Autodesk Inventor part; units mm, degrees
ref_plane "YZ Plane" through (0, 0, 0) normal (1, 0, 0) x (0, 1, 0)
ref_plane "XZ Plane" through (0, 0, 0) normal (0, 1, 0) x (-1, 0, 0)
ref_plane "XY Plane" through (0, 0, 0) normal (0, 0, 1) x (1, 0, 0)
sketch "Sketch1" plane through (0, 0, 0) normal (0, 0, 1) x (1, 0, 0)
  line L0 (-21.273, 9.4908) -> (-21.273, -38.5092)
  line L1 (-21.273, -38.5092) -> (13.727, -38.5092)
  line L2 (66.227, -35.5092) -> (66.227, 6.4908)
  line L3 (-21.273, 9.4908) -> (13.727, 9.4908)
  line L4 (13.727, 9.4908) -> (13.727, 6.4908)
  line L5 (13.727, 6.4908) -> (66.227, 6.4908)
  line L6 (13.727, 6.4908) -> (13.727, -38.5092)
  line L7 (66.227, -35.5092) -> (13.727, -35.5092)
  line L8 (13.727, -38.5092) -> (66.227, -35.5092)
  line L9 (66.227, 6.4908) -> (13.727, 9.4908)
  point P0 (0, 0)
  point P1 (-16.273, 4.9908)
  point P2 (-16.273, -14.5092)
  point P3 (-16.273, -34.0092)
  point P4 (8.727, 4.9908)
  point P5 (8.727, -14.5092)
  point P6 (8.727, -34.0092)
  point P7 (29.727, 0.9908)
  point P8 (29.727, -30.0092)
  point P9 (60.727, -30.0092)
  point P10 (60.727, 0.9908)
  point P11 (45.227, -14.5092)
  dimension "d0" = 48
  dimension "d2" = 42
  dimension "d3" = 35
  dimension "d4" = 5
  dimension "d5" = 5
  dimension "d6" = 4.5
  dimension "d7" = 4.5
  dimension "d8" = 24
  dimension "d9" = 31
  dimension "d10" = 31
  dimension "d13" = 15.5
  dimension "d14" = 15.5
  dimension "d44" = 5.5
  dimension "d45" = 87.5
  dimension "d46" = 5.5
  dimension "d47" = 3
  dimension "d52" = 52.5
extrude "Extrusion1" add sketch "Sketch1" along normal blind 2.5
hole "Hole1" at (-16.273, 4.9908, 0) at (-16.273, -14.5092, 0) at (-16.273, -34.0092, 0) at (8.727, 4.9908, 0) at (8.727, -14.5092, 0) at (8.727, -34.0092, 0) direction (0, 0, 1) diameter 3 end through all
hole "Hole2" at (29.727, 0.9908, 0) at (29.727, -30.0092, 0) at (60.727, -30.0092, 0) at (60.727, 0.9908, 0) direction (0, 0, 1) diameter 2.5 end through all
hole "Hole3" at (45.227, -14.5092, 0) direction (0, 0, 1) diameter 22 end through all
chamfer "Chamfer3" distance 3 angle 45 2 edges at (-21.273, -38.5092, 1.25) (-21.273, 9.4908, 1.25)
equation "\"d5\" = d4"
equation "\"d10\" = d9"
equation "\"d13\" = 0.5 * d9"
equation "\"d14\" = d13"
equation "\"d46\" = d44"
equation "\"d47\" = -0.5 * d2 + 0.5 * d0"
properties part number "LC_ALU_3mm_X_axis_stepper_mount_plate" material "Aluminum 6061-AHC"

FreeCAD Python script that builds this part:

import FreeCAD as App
import Part
import Sketcher


def edges_at(feature, points):
    """Names of the edges that pass closest to the given points."""
    edges = feature.Shape.Edges
    near = lambda p: min(range(len(edges)), key=lambda i: edges[i].distToShape(Part.Vertex(*p))[0])
    return sorted({f"Edge{near(p) + 1}" for p in points})

doc = App.newDocument("Part")
params = doc.addObject("Spreadsheet::Sheet", "Params")
for row, (alias, value) in enumerate([
    ("sketch1_width", "35 mm"),
    ("sketch1_height", "48 mm"),
    ("sketch1_height2", "42 mm"),
    ("pad1_length", "2.5 mm"),
    ("sketch2_diameter", "3 mm"),
    ("hole_diameter", "3 mm"),
    ("sketch3_diameter", "2.5 mm"),
    ("hole2_diameter", "2.5 mm"),
    ("sketch4_diameter", "22 mm"),
    ("hole3_diameter", "22 mm"),
    ("chamfer_size", "3 mm"),
], start=1):
    params.set(f"A{row}", alias)
    params.set(f"B{row}", "=" + value)
    params.setAlias(f"B{row}", alias)

body = doc.addObject("PartDesign::Body", "Body")

# Sketch on XY plane
sketch1 = body.newObject("Sketcher::SketchObject", "Sketch")
sketch1.AttachmentSupport = (doc.getObject("XY_Plane"), [""])
sketch1.MapMode = "FlatFace"
sketch1.addGeometry([
    Part.LineSegment(App.Vector(13.727, 9.4908, 0), App.Vector(-21.273, 9.4908, 0)),  # 0
    Part.LineSegment(App.Vector(-21.273, 9.4908, 0), App.Vector(-21.273, -38.5092, 0)),  # 1
    Part.LineSegment(App.Vector(-21.273, -38.5092, 0), App.Vector(13.727, -38.5092, 0)),  # 2
    Part.LineSegment(App.Vector(13.727, -38.5092, 0), App.Vector(66.227, -35.5092, 0)),  # 3
    Part.LineSegment(App.Vector(66.227, -35.5092, 0), App.Vector(66.227, 6.4908, 0)),  # 4
    Part.LineSegment(App.Vector(66.227, 6.4908, 0), App.Vector(13.727, 9.4908, 0)),  # 5
], False)
sketch1.addConstraint([
    Sketcher.Constraint("Coincident", 0, 2, 1, 1),
    Sketcher.Constraint("Coincident", 1, 2, 2, 1),
    Sketcher.Constraint("Coincident", 2, 2, 3, 1),
    Sketcher.Constraint("Coincident", 3, 2, 4, 1),
    Sketcher.Constraint("Coincident", 4, 2, 5, 1),
    Sketcher.Constraint("Coincident", 5, 2, 0, 1),
    Sketcher.Constraint("Horizontal", 0),
    Sketcher.Constraint("Vertical", 1),
    Sketcher.Constraint("Horizontal", 2),
    Sketcher.Constraint("Vertical", 4),
    Sketcher.Constraint("Vertical", 2, 2, 5, 2),
    Sketcher.Constraint("Equal", 3, 5),
    Sketcher.Constraint("DistanceX", 0, 2, 0, 1, 35.0),
    Sketcher.Constraint("DistanceY", 1, 2, 1, 1, 48.0),
    Sketcher.Constraint("DistanceY", 4, 1, 4, 2, 42.0),
    Sketcher.Constraint("DistanceX", 2, 2, 3, 2, 52.5),
    Sketcher.Constraint("DistanceX", 0, 2, -1, 1, 21.273),
    Sketcher.Constraint("DistanceY", -1, 1, 0, 2, 9.4908),
])
sketch1.setExpression("Constraints[12]", "Params.sketch1_width")
sketch1.setExpression("Constraints[13]", "Params.sketch1_height")
sketch1.setExpression("Constraints[14]", "Params.sketch1_height2")
pad1 = body.newObject("PartDesign::Pad", "Pad")
pad1.Profile = sketch1
pad1.setExpression("Length", "Params.pad1_length")

# Sketch on XY plane
sketch2 = body.newObject("Sketcher::SketchObject", "Sketch001")
sketch2.AttachmentSupport = (doc.getObject("XY_Plane"), [""])
sketch2.MapMode = "FlatFace"
sketch2.addGeometry([
    Part.Circle(App.Vector(-16.273, 4.9908, 0), App.Vector(0, 0, 1), 1.5),  # 0
    Part.Circle(App.Vector(-16.273, -14.5092, 0), App.Vector(0, 0, 1), 1.5),  # 1
    Part.Circle(App.Vector(-16.273, -34.0092, 0), App.Vector(0, 0, 1), 1.5),  # 2
    Part.Circle(App.Vector(8.727, 4.9908, 0), App.Vector(0, 0, 1), 1.5),  # 3
    Part.Circle(App.Vector(8.727, -14.5092, 0), App.Vector(0, 0, 1), 1.5),  # 4
    Part.Circle(App.Vector(8.727, -34.0092, 0), App.Vector(0, 0, 1), 1.5),  # 5
], False)
sketch2.addConstraint([
    Sketcher.Constraint("Equal", 0, 1),
    Sketcher.Constraint("Equal", 1, 2),
    Sketcher.Constraint("Equal", 2, 3),
    Sketcher.Constraint("Equal", 3, 4),
    Sketcher.Constraint("Equal", 4, 5),
    Sketcher.Constraint("Horizontal", 0, 3, 3, 3),
    Sketcher.Constraint("Horizontal", 1, 3, 4, 3),
    Sketcher.Constraint("Horizontal", 2, 3, 5, 3),
    Sketcher.Constraint("Vertical", 0, 3, 1, 3),
    Sketcher.Constraint("Vertical", 1, 3, 2, 3),
    Sketcher.Constraint("Vertical", 3, 3, 4, 3),
    Sketcher.Constraint("Vertical", 4, 3, 5, 3),
    Sketcher.Constraint("Diameter", 0, 3.0),
    Sketcher.Constraint("DistanceY", 2, 3, 0, 3, 39.0),
    Sketcher.Constraint("DistanceX", 0, 3, 3, 3, 25.0),
    Sketcher.Constraint("DistanceY", 1, 3, 0, 3, 19.5),
    Sketcher.Constraint("DistanceX", 0, 3, -1, 1, 16.273),
    Sketcher.Constraint("DistanceY", -1, 1, 0, 3, 4.9908),
])
sketch2.setExpression("Constraints[12]", "Params.sketch2_diameter")
doc.recompute()
hole = body.newObject("PartDesign::Hole", "Hole")
hole.Profile = sketch2
hole.ThreadType = "None"
hole.setExpression("Diameter", "Params.hole_diameter")
hole.DepthType = "ThroughAll"
hole.Reversed = True

# Sketch on XY plane
sketch3 = body.newObject("Sketcher::SketchObject", "Sketch002")
sketch3.AttachmentSupport = (doc.getObject("XY_Plane"), [""])
sketch3.MapMode = "FlatFace"
sketch3.addGeometry([
    Part.Circle(App.Vector(29.727, 0.9908, 0), App.Vector(0, 0, 1), 1.25),
    Part.Circle(App.Vector(29.727, -30.0092, 0), App.Vector(0, 0, 1), 1.25),
    Part.Circle(App.Vector(60.727, -30.0092, 0), App.Vector(0, 0, 1), 1.25),
    Part.Circle(App.Vector(60.727, 0.9908, 0), App.Vector(0, 0, 1), 1.25),
], False)
sketch3.addConstraint([
    Sketcher.Constraint("Equal", 0, 1),
    Sketcher.Constraint("Equal", 1, 2),
    Sketcher.Constraint("Equal", 2, 3),
    Sketcher.Constraint("Horizontal", 1, 3, 2, 3),
    Sketcher.Constraint("Horizontal", 0, 3, 3, 3),
    Sketcher.Constraint("Vertical", 0, 3, 1, 3),
    Sketcher.Constraint("Vertical", 2, 3, 3, 3),
    Sketcher.Constraint("Diameter", 0, 2.5),
    Sketcher.Constraint("DistanceY", 1, 3, 0, 3, 31.0),
    Sketcher.Constraint("DistanceX", 1, 3, 2, 3, 31.0),
    Sketcher.Constraint("DistanceX", -1, 1, 0, 3, 29.727),
    Sketcher.Constraint("DistanceY", -1, 1, 0, 3, 0.9908),
])
sketch3.setExpression("Constraints[7]", "Params.sketch3_diameter")
doc.recompute()
hole2 = body.newObject("PartDesign::Hole", "Hole001")
hole2.Profile = sketch3
hole2.ThreadType = "None"
hole2.setExpression("Diameter", "Params.hole2_diameter")
hole2.DepthType = "ThroughAll"
hole2.Reversed = True

# Sketch on XY plane
sketch4 = body.newObject("Sketcher::SketchObject", "Sketch003")
sketch4.AttachmentSupport = (doc.getObject("XY_Plane"), [""])
sketch4.MapMode = "FlatFace"
sketch4.addGeometry(Part.Circle(App.Vector(45.227, -14.5092, 0), App.Vector(0, 0, 1), 11), False)
sketch4.addConstraint([
    Sketcher.Constraint("Diameter", 0, 22.0),
    Sketcher.Constraint("DistanceX", -1, 1, 0, 3, 45.227),
    Sketcher.Constraint("DistanceY", 0, 3, -1, 1, 14.5092),
])
sketch4.setExpression("Constraints[0]", "Params.sketch4_diameter")
doc.recompute()
hole3 = body.newObject("PartDesign::Hole", "Hole002")
hole3.Profile = sketch4
hole3.ThreadType = "None"
hole3.setExpression("Diameter", "Params.hole3_diameter")
hole3.DepthType = "ThroughAll"
hole3.Reversed = True
doc.recompute()

chamfer = body.newObject("PartDesign::Chamfer", "Chamfer")
chamfer.Base = (hole3, edges_at(hole3, [(-21.273, -38.509, 1.25), (-21.273, 9.491, 1.25)]))
chamfer.setExpression("Size", "Params.chamfer_size")

doc.recompute()
